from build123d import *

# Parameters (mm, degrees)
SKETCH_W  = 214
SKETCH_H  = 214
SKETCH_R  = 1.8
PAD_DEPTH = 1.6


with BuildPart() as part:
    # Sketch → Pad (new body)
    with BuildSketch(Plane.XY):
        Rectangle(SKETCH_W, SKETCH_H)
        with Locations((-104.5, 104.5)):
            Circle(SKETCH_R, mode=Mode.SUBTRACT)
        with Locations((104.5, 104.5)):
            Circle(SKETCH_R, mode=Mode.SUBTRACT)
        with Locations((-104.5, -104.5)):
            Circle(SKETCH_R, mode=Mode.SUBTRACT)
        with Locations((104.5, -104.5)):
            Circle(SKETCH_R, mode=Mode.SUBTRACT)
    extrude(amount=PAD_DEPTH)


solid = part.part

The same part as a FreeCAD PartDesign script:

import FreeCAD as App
import Part
import Sketcher
from FreeCAD import Vector
Q = App.Units.Quantity


def add_polygon(sketch, points):
    """Adds a closed chain of lines whose ends are joined by coincident constraints."""
    first, n = sketch.GeometryCount, len(points)
    for a, b in zip(points, points[1:] + points[:1]):
        sketch.addGeometry(Part.LineSegment(App.Vector(*a, 0), App.Vector(*b, 0)), False)
    for i in range(n):
        sketch.addConstraint(Sketcher.Constraint("Coincident", first + i, 2, first + (i + 1) % n, 1))

doc = App.newDocument("Part")
params = doc.addObject("Spreadsheet::Sheet", "Params")
for row, (alias, value) in enumerate([
    ("sketch1_diameter", "3.6 mm"),
    ("sketch1_width", "214 mm"),
    ("pad1_length", "1.6 mm"),
], start=1):
    params.set(f"A{row}", alias)
    params.set(f"B{row}", "=" + value)
    params.setAlias(f"B{row}", alias)

body = doc.addObject("PartDesign::Body", "Body")

sketch1 = doc.addObject("Sketcher::SketchObject", "Sketch")
body.addObject(sketch1)
sketch1.AttachmentSupport = (doc.XY_Plane, [""])
sketch1.MapMode = "FlatFace"
add_polygon(sketch1, [(-107, 107), (-107, -107), (107, -107), (107, 107)])
sketch1.addGeometry(Part.Circle(Vector(-104.5, -104.5, 0), Vector(0, 0, 1), 1.8), False)
sketch1.addGeometry(Part.Circle(Vector(104.5, -104.5, 0), Vector(0, 0, 1), 1.8), False)
sketch1.addGeometry(Part.Circle(Vector(-104.5, 104.5, 0), Vector(0, 0, 1), 1.8), False)
sketch1.addGeometry(Part.Circle(Vector(104.5, 104.5, 0), Vector(0, 0, 1), 1.8), False)
sketch1.addConstraint([
    Sketcher.Constraint("Vertical", 0),
    Sketcher.Constraint("Horizontal", 1),
    Sketcher.Constraint("Vertical", 2),
    Sketcher.Constraint("Horizontal", 3),
    Sketcher.Constraint("Equal", 4, 5),
    Sketcher.Constraint("Equal", 5, 6),
    Sketcher.Constraint("Equal", 6, 7),
    Sketcher.Constraint("Symmetric", 5, 3, 6, 3, -1, 1),
    Sketcher.Constraint("Symmetric", 4, 3, 7, 3, -1, 1),
    Sketcher.Constraint("Symmetric", 0, 2, 2, 2, -1, 1),
    Sketcher.Constraint("Symmetric", 4, 3, 5, 3, -2),
    Sketcher.Constraint("Equal", 3, 0),
    Sketcher.Constraint("Diameter", 4, Q("3.6 mm")),
    Sketcher.Constraint("DistanceX", 1, 1, 1, 2, Q("214 mm")),
    Sketcher.Constraint("DistanceX", 4, 3, 5, 3, Q("209 mm")),
    Sketcher.Constraint("DistanceY", 4, 3, 6, 3, Q("209 mm")),
])
sketch1.setExpression("Constraints[16]", "Params.sketch1_diameter")
sketch1.setExpression("Constraints[17]", "Params.sketch1_width")
pad1 = doc.addObject("PartDesign::Pad", "Pad")
body.addObject(pad1)
pad1.Profile = sketch1
pad1.setExpression("Length", "Params.pad1_length")

doc.recompute()
